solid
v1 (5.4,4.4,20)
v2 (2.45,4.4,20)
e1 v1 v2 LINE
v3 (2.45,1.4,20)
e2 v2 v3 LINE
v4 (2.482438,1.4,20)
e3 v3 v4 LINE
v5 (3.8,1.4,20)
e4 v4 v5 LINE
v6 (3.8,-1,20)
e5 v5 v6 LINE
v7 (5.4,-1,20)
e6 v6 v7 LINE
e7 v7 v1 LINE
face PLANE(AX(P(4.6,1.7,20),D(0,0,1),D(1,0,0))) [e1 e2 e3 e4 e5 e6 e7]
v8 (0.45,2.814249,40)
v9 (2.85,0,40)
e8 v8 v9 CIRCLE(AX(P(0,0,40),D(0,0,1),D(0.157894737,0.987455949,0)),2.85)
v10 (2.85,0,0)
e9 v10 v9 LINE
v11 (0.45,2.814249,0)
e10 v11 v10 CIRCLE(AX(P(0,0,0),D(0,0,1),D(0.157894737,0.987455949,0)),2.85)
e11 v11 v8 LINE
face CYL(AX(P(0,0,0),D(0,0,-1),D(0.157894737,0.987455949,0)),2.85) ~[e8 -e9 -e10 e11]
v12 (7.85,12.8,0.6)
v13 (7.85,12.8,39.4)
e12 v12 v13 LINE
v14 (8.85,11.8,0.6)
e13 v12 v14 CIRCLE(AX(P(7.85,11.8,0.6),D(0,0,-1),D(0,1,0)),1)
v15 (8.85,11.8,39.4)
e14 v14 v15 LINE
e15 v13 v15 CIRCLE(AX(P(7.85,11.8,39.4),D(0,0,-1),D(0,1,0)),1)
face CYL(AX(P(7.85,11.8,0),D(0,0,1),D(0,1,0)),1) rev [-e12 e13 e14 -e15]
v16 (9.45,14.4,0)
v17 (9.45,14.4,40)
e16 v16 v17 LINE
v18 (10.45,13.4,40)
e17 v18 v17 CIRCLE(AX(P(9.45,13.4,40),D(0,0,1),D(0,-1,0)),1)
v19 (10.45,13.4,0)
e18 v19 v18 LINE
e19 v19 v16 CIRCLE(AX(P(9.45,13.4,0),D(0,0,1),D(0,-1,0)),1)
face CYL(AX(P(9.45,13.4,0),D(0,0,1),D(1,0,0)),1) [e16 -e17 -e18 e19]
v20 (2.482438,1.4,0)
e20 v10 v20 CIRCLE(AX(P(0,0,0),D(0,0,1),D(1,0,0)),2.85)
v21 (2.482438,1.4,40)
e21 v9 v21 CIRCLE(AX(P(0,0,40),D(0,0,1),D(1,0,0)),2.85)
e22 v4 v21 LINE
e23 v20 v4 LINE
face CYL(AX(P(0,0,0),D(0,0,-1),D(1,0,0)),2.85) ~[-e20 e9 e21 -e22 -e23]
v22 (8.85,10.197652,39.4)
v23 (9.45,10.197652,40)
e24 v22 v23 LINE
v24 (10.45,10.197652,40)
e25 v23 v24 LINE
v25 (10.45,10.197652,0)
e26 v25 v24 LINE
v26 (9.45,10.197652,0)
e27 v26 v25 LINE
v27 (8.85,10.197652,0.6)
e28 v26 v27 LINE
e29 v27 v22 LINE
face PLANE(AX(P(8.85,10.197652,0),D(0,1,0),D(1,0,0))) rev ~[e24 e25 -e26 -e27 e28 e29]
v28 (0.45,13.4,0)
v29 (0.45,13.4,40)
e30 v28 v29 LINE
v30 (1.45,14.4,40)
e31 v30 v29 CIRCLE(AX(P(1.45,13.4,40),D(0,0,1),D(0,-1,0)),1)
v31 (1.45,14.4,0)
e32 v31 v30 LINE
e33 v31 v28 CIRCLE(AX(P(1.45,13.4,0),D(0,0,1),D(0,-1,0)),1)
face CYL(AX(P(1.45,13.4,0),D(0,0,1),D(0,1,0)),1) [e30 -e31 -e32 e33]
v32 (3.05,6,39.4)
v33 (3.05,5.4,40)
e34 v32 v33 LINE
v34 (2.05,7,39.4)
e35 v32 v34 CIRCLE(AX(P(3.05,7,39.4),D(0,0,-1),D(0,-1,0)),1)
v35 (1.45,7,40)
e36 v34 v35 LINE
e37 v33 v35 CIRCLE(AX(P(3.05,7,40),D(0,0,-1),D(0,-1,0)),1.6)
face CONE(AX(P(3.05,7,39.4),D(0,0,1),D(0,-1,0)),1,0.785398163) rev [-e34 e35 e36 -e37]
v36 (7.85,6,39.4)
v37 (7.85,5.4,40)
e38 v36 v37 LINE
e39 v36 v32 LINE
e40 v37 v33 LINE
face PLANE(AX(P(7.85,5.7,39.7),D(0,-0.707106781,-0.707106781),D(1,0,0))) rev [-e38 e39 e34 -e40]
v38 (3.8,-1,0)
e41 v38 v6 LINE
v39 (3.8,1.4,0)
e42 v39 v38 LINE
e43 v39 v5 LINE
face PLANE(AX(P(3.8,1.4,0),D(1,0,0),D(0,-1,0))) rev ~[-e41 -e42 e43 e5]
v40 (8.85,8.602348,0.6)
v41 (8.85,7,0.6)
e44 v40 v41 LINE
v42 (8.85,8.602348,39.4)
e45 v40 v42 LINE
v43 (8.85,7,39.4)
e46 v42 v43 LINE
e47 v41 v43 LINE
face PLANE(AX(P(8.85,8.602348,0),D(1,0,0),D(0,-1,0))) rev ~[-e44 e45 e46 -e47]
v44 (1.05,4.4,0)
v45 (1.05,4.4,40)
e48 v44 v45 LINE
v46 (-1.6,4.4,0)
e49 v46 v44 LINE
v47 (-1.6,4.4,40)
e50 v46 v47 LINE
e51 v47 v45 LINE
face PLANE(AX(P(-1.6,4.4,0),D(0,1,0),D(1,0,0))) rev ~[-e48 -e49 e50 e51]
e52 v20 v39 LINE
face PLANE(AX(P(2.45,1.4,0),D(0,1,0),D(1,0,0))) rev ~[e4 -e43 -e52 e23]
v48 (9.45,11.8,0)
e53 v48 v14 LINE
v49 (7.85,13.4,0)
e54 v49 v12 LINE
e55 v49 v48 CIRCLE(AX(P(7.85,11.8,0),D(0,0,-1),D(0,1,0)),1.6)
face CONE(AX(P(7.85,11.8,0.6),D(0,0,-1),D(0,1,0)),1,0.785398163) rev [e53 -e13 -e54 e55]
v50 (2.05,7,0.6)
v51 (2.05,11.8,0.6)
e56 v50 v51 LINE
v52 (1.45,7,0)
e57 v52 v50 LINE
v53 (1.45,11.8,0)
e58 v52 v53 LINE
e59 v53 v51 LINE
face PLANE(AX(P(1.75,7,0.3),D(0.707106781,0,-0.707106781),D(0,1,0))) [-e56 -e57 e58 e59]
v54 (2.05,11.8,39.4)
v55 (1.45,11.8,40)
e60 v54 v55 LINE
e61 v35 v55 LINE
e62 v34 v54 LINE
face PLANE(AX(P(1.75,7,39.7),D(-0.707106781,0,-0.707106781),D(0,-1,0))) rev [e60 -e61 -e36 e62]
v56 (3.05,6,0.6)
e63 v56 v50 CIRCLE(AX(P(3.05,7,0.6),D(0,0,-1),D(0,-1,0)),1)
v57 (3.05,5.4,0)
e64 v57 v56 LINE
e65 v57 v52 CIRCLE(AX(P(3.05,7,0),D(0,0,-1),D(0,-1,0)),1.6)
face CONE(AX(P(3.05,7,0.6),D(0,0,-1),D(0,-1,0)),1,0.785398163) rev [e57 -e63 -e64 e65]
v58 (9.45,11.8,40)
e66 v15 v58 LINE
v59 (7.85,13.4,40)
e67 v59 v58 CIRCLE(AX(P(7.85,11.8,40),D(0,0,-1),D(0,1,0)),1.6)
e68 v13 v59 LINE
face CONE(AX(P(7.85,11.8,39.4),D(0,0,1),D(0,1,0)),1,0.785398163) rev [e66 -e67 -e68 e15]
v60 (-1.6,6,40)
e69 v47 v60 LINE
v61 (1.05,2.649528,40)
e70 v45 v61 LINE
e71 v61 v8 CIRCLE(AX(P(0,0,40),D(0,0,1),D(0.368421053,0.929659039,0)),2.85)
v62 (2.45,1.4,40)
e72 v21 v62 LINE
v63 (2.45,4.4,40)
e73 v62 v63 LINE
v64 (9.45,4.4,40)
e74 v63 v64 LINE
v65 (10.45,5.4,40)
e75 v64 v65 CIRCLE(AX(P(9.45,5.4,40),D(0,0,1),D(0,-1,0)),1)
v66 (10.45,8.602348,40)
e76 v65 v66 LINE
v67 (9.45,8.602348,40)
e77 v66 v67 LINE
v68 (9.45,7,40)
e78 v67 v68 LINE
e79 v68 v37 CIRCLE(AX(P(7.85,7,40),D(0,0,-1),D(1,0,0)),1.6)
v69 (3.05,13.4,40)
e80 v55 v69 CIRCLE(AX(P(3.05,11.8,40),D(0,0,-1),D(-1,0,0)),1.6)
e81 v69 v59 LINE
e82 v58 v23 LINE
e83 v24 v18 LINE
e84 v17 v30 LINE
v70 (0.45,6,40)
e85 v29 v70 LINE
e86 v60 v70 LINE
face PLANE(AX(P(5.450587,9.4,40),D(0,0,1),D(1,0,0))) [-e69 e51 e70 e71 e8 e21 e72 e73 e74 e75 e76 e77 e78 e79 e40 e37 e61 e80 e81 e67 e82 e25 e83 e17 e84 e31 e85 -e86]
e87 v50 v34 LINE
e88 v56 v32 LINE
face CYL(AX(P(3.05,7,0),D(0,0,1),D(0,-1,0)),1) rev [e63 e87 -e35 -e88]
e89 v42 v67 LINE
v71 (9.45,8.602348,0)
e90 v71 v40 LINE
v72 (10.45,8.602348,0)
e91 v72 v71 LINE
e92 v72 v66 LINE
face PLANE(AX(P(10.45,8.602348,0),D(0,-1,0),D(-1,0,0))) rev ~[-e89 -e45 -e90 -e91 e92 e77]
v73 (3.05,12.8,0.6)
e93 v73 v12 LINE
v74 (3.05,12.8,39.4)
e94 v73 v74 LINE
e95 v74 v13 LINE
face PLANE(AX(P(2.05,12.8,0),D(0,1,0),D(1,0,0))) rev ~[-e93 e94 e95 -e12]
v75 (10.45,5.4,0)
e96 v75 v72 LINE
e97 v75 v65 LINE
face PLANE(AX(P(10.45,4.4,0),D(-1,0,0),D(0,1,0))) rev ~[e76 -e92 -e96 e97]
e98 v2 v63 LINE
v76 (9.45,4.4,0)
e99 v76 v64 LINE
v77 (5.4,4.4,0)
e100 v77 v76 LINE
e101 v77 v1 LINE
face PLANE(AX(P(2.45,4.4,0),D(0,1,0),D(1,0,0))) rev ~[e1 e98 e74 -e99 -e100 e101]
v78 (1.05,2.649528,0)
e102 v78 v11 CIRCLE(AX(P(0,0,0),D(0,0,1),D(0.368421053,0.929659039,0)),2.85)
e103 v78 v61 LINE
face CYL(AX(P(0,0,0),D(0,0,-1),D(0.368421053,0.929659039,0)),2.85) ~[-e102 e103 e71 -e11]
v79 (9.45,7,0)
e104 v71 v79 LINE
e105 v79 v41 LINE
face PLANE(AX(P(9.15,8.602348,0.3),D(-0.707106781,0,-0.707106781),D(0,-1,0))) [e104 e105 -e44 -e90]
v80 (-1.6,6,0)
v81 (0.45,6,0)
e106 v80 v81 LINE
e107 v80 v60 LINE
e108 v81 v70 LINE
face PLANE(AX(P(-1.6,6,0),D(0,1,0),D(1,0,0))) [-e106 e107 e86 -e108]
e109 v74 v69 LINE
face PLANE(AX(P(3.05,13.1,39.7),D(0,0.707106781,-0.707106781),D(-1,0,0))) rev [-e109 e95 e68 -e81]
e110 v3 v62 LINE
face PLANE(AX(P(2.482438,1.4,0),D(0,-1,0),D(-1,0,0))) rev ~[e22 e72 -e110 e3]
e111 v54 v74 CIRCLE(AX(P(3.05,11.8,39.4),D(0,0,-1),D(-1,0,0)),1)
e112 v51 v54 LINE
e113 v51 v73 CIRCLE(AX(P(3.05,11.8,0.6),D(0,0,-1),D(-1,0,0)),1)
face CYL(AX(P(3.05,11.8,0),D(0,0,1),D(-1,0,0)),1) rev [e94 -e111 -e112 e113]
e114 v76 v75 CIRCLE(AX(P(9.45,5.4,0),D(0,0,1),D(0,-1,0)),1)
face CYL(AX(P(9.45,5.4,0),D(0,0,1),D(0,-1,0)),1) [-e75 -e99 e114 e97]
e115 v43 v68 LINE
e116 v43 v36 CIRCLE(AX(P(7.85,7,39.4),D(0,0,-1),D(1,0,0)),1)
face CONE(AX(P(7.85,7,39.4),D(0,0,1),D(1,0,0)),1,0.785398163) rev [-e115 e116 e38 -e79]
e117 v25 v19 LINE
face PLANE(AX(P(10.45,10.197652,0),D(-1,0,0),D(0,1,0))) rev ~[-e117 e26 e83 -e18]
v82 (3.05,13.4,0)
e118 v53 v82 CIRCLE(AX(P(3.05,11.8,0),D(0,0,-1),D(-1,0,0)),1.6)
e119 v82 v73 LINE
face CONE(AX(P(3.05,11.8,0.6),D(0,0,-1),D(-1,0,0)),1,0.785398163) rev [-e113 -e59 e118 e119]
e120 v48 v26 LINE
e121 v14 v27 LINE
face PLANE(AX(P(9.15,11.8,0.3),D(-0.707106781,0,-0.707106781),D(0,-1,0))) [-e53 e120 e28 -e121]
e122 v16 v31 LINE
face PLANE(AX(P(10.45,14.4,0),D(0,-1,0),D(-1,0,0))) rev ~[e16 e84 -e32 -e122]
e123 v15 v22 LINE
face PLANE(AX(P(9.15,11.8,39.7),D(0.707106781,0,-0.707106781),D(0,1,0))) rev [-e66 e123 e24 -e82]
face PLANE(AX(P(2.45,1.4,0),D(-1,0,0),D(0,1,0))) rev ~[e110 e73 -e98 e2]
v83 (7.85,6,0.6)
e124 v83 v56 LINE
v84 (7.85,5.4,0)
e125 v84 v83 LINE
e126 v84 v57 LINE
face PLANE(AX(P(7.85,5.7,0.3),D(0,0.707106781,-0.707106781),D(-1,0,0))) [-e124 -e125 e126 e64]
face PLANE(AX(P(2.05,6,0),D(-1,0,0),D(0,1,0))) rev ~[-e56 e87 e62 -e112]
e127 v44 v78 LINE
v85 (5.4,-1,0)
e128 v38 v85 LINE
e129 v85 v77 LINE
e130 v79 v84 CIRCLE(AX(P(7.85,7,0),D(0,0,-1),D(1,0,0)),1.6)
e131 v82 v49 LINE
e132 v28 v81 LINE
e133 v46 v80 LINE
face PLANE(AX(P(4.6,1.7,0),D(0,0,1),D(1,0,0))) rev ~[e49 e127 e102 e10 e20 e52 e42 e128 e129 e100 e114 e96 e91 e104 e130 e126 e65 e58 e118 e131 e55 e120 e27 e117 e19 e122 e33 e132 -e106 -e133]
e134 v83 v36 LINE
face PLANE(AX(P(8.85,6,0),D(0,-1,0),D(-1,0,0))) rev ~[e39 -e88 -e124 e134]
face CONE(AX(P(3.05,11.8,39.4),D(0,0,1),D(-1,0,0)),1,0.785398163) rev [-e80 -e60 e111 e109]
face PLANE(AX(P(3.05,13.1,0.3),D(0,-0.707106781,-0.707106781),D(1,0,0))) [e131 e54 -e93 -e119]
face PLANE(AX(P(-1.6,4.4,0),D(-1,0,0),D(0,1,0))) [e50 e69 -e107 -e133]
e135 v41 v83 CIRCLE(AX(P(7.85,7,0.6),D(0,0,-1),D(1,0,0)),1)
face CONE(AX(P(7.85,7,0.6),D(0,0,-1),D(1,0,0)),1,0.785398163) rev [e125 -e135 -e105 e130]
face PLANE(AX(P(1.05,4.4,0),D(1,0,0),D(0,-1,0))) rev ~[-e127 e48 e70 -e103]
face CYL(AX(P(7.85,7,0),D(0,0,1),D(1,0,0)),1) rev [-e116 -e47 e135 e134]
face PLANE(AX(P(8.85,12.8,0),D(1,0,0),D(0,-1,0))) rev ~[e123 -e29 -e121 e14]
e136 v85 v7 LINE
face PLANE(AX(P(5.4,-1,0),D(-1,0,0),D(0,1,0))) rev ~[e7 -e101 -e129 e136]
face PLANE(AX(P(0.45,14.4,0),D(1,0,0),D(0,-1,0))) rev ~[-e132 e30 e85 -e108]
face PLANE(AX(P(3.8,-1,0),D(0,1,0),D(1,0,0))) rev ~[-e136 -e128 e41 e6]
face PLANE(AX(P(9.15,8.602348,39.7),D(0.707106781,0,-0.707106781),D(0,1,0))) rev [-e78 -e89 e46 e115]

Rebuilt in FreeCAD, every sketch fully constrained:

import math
import FreeCAD as App
import Part
import Sketcher
from FreeCAD import Vector
Q = App.Units.Quantity


def edges_at(feature, points):
    """Names of the edges that pass closest to the given points."""
    edges = feature.Shape.Edges
    near = lambda p: min(range(len(edges)), key=lambda i: edges[i].distToShape(Part.Vertex(*p))[0])
    return sorted({f"Edge{near(p) + 1}" for p in points})

doc = App.newDocument("Part")
body = doc.addObject("PartDesign::Body", "Body")

# Sketch on XY plane
sketch1 = doc.addObject("Sketcher::SketchObject", "Sketch")
body.addObject(sketch1)
sketch1.AttachmentSupport = (doc.XY_Plane, [""])
sketch1.MapMode = "FlatFace"
sketch1.addGeometry([
    Part.LineSegment(Vector(1.05, 4.4, 0), Vector(1.05, 2.65, 0)),  # 0
    Part.ArcOfCircle(Part.Circle(Vector(0, 0, 0), Vector(0, 0, 1), 2.85), math.radians(68.38), math.radians(80.92)),  # 1
    Part.ArcOfCircle(Part.Circle(Vector(0, 0, 0), Vector(0, 0, 1), 2.85), math.radians(81), math.radians(360)),  # 2
    Part.ArcOfCircle(Part.Circle(Vector(0, 0, 0), Vector(0, 0, 1), 2.85), math.radians(0), math.radians(29)),  # 3
    Part.LineSegment(Vector(2.482, 1.4, 0), Vector(2.45, 1.4, 0)),  # 4
    Part.LineSegment(Vector(2.45, 1.4, 0), Vector(2.45, 4.4, 0)),  # 5
    Part.LineSegment(Vector(2.45, 4.4, 0), Vector(10.45, 4.4, 0)),  # 6
    Part.LineSegment(Vector(10.45, 4.4, 0), Vector(10.45, 8.602, 0)),  # 7
    Part.LineSegment(Vector(10.45, 8.602, 0), Vector(8.85, 8.602, 0)),  # 8
    Part.LineSegment(Vector(8.85, 8.602, 0), Vector(8.85, 6, 0)),  # 9
    Part.LineSegment(Vector(8.85, 6, 0), Vector(2.05, 6, 0)),  # 10
    Part.LineSegment(Vector(2.05, 6, 0), Vector(2.05, 12.8, 0)),  # 11
    Part.LineSegment(Vector(2.05, 12.8, 0), Vector(8.85, 12.8, 0)),  # 12
    Part.LineSegment(Vector(8.85, 12.8, 0), Vector(8.85, 10.198, 0)),  # 13
    Part.LineSegment(Vector(8.85, 10.198, 0), Vector(10.45, 10.198, 0)),  # 14
    Part.LineSegment(Vector(10.45, 10.198, 0), Vector(10.45, 14.4, 0)),  # 15
    Part.LineSegment(Vector(10.45, 14.4, 0), Vector(0.45, 14.4, 0)),  # 16
    Part.LineSegment(Vector(0.45, 14.4, 0), Vector(0.45, 6, 0)),  # 17
    Part.LineSegment(Vector(0.45, 6, 0), Vector(-1.6, 6, 0)),  # 18
    Part.LineSegment(Vector(-1.6, 6, 0), Vector(-1.6, 4.4, 0)),  # 19
    Part.LineSegment(Vector(-1.6, 4.4, 0), Vector(1.05, 4.4, 0)),  # 20
], False)
sketch1.addConstraint([
    Sketcher.Constraint("Coincident", 0, 2, 1, 1),
    Sketcher.Constraint("Tangent", 1, 2, 2, 1),
    Sketcher.Constraint("Tangent", 2, 2, 3, 1),
    Sketcher.Constraint("Coincident", 3, 2, 4, 1),
    Sketcher.Constraint("Coincident", 4, 2, 5, 1),
    Sketcher.Constraint("Coincident", 5, 2, 6, 1),
    Sketcher.Constraint("Coincident", 6, 2, 7, 1),
    Sketcher.Constraint("Coincident", 7, 2, 8, 1),
    Sketcher.Constraint("Coincident", 8, 2, 9, 1),
    Sketcher.Constraint("Coincident", 9, 2, 10, 1),
    Sketcher.Constraint("Coincident", 10, 2, 11, 1),
    Sketcher.Constraint("Coincident", 11, 2, 12, 1),
    Sketcher.Constraint("Coincident", 12, 2, 13, 1),
    Sketcher.Constraint("Coincident", 13, 2, 14, 1),
    Sketcher.Constraint("Coincident", 14, 2, 15, 1),
    Sketcher.Constraint("Coincident", 15, 2, 16, 1),
    Sketcher.Constraint("Coincident", 16, 2, 17, 1),
    Sketcher.Constraint("Coincident", 17, 2, 18, 1),
    Sketcher.Constraint("Coincident", 18, 2, 19, 1),
    Sketcher.Constraint("Coincident", 19, 2, 20, 1),
    Sketcher.Constraint("Coincident", 20, 2, 0, 1),
    Sketcher.Constraint("Vertical", 0),
    Sketcher.Constraint("Horizontal", 4),
    Sketcher.Constraint("Vertical", 5),
    Sketcher.Constraint("Horizontal", 6),
    Sketcher.Constraint("Vertical", 7),
    Sketcher.Constraint("Horizontal", 8),
    Sketcher.Constraint("Vertical", 9),
    Sketcher.Constraint("Horizontal", 10),
    Sketcher.Constraint("Vertical", 11),
    Sketcher.Constraint("Horizontal", 12),
    Sketcher.Constraint("Vertical", 13),
    Sketcher.Constraint("Horizontal", 14),
    Sketcher.Constraint("Vertical", 15),
    Sketcher.Constraint("Horizontal", 16),
    Sketcher.Constraint("Vertical", 17),
    Sketcher.Constraint("Horizontal", 18),
    Sketcher.Constraint("Vertical", 19),
    Sketcher.Constraint("Horizontal", 20),
    Sketcher.Constraint("Coincident", 1, 3, -1, 1),
    Sketcher.Constraint("Coincident", 3, 3, -1, 1),
    Sketcher.Constraint("PointOnObject", 2, 2, -1),
    Sketcher.Constraint("Horizontal", 10, 2, 17, 2),
    Sketcher.Constraint("Horizontal", 6, 2, 19, 2),
    Sketcher.Constraint("Vertical", 9, 2, 12, 2),
    Sketcher.Constraint("Vertical", 7, 2, 14, 2),
    Sketcher.Constraint("Vertical", 1, 2, 16, 2),
    Sketcher.Constraint("Equal", 12, 11),
    Sketcher.Constraint("Equal", 9, 13),
    Sketcher.Constraint("Equal", 7, 15),
    Sketcher.Constraint("Equal", 14, 19),
    Sketcher.Constraint("DistanceX", 6, 1, 6, 2, Q("8 mm")),
    Sketcher.Constraint("DistanceX", 16, 2, 16, 1, Q("10 mm")),
    Sketcher.Constraint("DistanceY", 5, 1, 5, 2, Q("3 mm")),
    Sketcher.Constraint("Radius", 1, Q("2.85 mm")),
    Sketcher.Constraint("DistanceX", 8, 2, 8, 1, Q("1.6 mm")),
    Sketcher.Constraint("DistanceX", 10, 2, 10, 1, Q("6.8 mm")),
    Sketcher.Constraint("DistanceY", -1, 1, 9, 2, Q("6 mm")),
    Sketcher.Constraint("DistanceX", 0, 2, 10, 2, Q("1 mm")),
    Sketcher.Constraint("DistanceX", 18, 2, 18, 1, Q("2.05 mm")),
    Sketcher.Constraint("DistanceX", 18, 2, -1, 1, Q("1.6 mm")),
    Sketcher.Constraint("DistanceY", 7, 1, 7, 2, Q("4.202348 mm")),
])
pad1 = doc.addObject("PartDesign::Pad", "Pad")
body.addObject(pad1)
pad1.Profile = sketch1
pad1.Length = 40

# Sketch on XY plane
sketch2 = doc.addObject("Sketcher::SketchObject", "Sketch001")
body.addObject(sketch2)
sketch2.AttachmentSupport = (doc.XY_Plane, [""])
sketch2.MapMode = "FlatFace"
sketch2.addGeometry([
    Part.LineSegment(Vector(5.4, 4.4, 0), Vector(2.5, 4.4, 0)),  # 0
    Part.LineSegment(Vector(2.5, 4.4, 0), Vector(2.5, 1.4, 0)),  # 1
    Part.LineSegment(Vector(2.5, 1.4, 0), Vector(3.8, 1.4, 0)),  # 2
    Part.LineSegment(Vector(3.8, 1.4, 0), Vector(3.8, -1, 0)),  # 3
    Part.LineSegment(Vector(3.8, -1, 0), Vector(5.4, -1, 0)),  # 4
    Part.LineSegment(Vector(5.4, -1, 0), Vector(5.4, 4.4, 0)),  # 5
], False)
sketch2.addConstraint([
    Sketcher.Constraint("Coincident", 0, 2, 1, 1),
    Sketcher.Constraint("Coincident", 1, 2, 2, 1),
    Sketcher.Constraint("Coincident", 2, 2, 3, 1),
    Sketcher.Constraint("Coincident", 3, 2, 4, 1),
    Sketcher.Constraint("Coincident", 4, 2, 5, 1),
    Sketcher.Constraint("Coincident", 5, 2, 0, 1),
    Sketcher.Constraint("Horizontal", 0),
    Sketcher.Constraint("Vertical", 1),
    Sketcher.Constraint("Horizontal", 2),
    Sketcher.Constraint("Vertical", 3),
    Sketcher.Constraint("Horizontal", 4),
    Sketcher.Constraint("Vertical", 5),
    Sketcher.Constraint("DistanceY", 1, 2, 1, 1, Q("3 mm")),
    Sketcher.Constraint("DistanceX", 4, 1, 4, 2, Q("1.6 mm")),
    Sketcher.Constraint("DistanceY", 3, 2, 3, 1, Q("2.4 mm")),
    Sketcher.Constraint("DistanceY", 3, 2, -1, 1, Q("1 mm")),
    Sketcher.Constraint("DistanceX", 0, 2, 0, 1, Q("2.95 mm")),
    Sketcher.Constraint("DistanceX", -1, 1, 2, 2, Q("3.8 mm")),
])
pad2 = doc.addObject("PartDesign::Pad", "Pad001")
body.addObject(pad2)
pad2.Profile = sketch2
pad2.Length = 20
doc.recompute()

fillet = doc.addObject("PartDesign::Fillet", "Fillet")
body.addObject(fillet)
fillet.Base = (pad2, edges_at(pad2, [
    (10.45, 14.4, 20),
    (0.45, 14.4, 20),
    (10.45, 4.4, 20),
    (2.05, 12.8, 20),
    (8.85, 12.8, 20),
    (8.85, 6, 20),
    (2.05, 6, 20),
]))
fillet.Radius = 1
doc.recompute()

chamfer = doc.addObject("PartDesign::Chamfer", "Chamfer")
body.addObject(chamfer)
chamfer.Base = (fillet, edges_at(fillet, [(2.05, 9.4, 40), (5.45, 6, 0)]))
chamfer.Size = 0.6

doc.recompute()
